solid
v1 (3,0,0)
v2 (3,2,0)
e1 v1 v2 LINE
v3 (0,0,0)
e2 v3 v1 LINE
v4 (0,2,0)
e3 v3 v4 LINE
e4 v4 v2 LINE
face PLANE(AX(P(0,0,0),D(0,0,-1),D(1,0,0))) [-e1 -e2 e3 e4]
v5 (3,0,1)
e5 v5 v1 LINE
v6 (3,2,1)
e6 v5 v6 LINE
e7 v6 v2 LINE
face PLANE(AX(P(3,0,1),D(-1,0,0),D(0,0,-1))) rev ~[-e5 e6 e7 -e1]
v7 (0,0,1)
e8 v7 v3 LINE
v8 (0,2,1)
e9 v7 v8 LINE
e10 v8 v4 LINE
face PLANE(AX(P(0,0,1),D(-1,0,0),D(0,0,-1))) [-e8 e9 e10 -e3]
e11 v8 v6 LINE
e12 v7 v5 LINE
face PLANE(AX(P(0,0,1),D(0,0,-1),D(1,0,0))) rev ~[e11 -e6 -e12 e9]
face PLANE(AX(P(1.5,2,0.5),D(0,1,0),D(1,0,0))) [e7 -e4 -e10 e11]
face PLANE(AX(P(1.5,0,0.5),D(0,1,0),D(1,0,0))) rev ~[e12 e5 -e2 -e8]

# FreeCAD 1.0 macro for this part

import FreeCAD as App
import Part
import Sketcher
from FreeCAD import Vector

doc = App.newDocument("Part")
params = doc.addObject("Spreadsheet::Sheet", "Params")
for row, (alias, value) in enumerate([
    ("sketch1_width", "3 mm"),
    ("sketch1_height", "1 mm"),
    ("pad1_length", "2 mm"),
], start=1):
    params.set(f"A{row}", alias)
    params.set(f"B{row}", "=" + value)
    params.setAlias(f"B{row}", alias)

body = doc.addObject("PartDesign::Body", "Body")

sketch1 = body.newObject("Sketcher::SketchObject", "Sketch")
sketch1.AttachmentSupport = (doc.getObject("XZ_Plane"), [""])
sketch1.MapMode = "FlatFace"
sketch1.addGeometry([
    Part.LineSegment(Vector(0, 0, 0), Vector(0, 1, 0)),
    Part.LineSegment(Vector(0, 1, 0), Vector(3, 1, 0)),
    Part.LineSegment(Vector(3, 1, 0), Vector(3, 0, 0)),
    Part.LineSegment(Vector(3, 0, 0), Vector(0, 0, 0)),
], False)
sketch1.addConstraint([
    Sketcher.Constraint("Coincident", 0, 2, 1, 1),
    Sketcher.Constraint("Coincident", 1, 2, 2, 1),
    Sketcher.Constraint("Coincident", 2, 2, 3, 1),
    Sketcher.Constraint("Coincident", 3, 2, 0, 1),
    Sketcher.Constraint("Vertical", 0),
    Sketcher.Constraint("Horizontal", 1),
    Sketcher.Constraint("Vertical", 2),
    Sketcher.Constraint("Horizontal", 3),
    Sketcher.Constraint("Coincident", 3, 2, -1, 1),
    Sketcher.Constraint("DistanceX", 1, 1, 1, 2, 3.0),
    Sketcher.Constraint("DistanceY", 0, 1, 0, 2, 1.0),
])
sketch1.setExpression("Constraints[9]", "Params.sketch1_width")
sketch1.setExpression("Constraints[10]", "Params.sketch1_height")
pad1 = body.newObject("PartDesign::Pad", "Pad")
pad1.Profile = sketch1
pad1.setExpression("Length", "Params.pad1_length")
pad1.Reversed = True

doc.recompute()
